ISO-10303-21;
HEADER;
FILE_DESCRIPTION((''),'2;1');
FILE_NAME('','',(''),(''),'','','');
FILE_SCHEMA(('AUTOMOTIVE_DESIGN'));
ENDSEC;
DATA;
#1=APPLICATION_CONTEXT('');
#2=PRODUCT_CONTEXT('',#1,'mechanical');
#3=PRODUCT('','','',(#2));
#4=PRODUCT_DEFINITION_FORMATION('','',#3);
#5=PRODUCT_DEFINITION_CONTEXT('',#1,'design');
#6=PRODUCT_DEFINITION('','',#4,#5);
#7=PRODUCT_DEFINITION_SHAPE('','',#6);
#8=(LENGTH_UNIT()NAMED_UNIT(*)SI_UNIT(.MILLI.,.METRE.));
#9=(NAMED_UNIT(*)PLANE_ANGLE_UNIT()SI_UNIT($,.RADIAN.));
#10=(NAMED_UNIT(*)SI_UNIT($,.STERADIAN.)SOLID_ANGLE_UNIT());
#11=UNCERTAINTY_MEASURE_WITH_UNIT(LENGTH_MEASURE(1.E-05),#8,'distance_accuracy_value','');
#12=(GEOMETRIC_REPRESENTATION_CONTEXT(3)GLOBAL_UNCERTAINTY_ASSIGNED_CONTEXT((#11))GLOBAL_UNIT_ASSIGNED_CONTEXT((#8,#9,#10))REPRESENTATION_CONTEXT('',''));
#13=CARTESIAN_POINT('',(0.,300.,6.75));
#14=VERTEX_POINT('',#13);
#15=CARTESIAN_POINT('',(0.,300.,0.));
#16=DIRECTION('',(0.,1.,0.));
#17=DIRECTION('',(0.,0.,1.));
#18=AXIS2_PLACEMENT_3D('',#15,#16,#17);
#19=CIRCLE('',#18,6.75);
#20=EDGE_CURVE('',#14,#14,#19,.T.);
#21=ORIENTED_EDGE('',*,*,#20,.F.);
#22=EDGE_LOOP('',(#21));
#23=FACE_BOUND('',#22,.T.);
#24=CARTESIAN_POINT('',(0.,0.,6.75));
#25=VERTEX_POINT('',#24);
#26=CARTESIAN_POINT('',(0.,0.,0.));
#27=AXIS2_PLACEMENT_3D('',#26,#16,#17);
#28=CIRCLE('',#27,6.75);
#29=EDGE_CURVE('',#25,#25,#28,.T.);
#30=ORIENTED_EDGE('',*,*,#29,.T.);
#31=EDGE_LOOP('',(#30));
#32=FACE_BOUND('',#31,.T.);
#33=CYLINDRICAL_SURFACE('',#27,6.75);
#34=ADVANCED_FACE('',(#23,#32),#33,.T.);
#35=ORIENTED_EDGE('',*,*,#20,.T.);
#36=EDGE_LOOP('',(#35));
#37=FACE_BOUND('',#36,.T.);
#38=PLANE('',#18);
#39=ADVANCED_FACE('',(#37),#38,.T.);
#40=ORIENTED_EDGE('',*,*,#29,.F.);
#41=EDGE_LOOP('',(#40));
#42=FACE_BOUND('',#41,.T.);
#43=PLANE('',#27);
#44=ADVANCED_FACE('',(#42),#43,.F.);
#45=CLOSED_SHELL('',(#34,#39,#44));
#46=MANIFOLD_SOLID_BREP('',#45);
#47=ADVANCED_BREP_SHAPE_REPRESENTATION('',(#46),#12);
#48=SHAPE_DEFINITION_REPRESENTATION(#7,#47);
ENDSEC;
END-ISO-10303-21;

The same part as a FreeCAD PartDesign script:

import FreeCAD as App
import Part
import Sketcher

V = App.Vector

doc = App.newDocument("Part")
params = doc.addObject("Spreadsheet::Sheet", "Params")
for row, (alias, value) in enumerate([
    ("sketch1_diameter", "13.5 mm"),
    ("sketch2_height", "300 mm"),
], start=1):
    params.set(f"A{row}", alias)
    params.set(f"B{row}", "=" + value)
    params.setAlias(f"B{row}", alias)

body = doc.addObject("PartDesign::Body", "Body")

sketch1 = body.newObject("Sketcher::SketchObject", "Sketch")
sketch1.AttachmentSupport = (doc.getObject("XZ_Plane"), [""])
sketch1.MapMode = "FlatFace"
sketch1.addGeometry(Part.Circle(V(0, 0, 0), V(0, 0, 1), 7), False)
sketch1.addConstraint([
    Sketcher.Constraint("Coincident", 0, 3, -1, 1),
    Sketcher.Constraint("Diameter", 0, 13.5),
])
sketch1.setExpression("Constraints[1]", "Params.sketch1_diameter")

sketch2 = body.newObject("Sketcher::SketchObject", "Sketch001")
sketch2.AttachmentSupport = (doc.getObject("XY_Plane"), [""])
sketch2.MapMode = "FlatFace"
sketch2.addGeometry(Part.LineSegment(V(0, 0, 0), V(0, 300, 0)), False)
sketch2.addConstraint([
    Sketcher.Constraint("Vertical", 0),
    Sketcher.Constraint("Coincident", 0, 1, -1, 1),
    Sketcher.Constraint("DistanceY", 0, 1, 0, 2, 300.0),
])
sketch2.setExpression("Constraints[2]", "Params.sketch2_height")
doc.recompute()

additivepipe = body.newObject("PartDesign::AdditivePipe", "AdditivePipe")
additivepipe.Profile = sketch1
additivepipe.Spine = (sketch2, ["Edge1"])

doc.recompute()
